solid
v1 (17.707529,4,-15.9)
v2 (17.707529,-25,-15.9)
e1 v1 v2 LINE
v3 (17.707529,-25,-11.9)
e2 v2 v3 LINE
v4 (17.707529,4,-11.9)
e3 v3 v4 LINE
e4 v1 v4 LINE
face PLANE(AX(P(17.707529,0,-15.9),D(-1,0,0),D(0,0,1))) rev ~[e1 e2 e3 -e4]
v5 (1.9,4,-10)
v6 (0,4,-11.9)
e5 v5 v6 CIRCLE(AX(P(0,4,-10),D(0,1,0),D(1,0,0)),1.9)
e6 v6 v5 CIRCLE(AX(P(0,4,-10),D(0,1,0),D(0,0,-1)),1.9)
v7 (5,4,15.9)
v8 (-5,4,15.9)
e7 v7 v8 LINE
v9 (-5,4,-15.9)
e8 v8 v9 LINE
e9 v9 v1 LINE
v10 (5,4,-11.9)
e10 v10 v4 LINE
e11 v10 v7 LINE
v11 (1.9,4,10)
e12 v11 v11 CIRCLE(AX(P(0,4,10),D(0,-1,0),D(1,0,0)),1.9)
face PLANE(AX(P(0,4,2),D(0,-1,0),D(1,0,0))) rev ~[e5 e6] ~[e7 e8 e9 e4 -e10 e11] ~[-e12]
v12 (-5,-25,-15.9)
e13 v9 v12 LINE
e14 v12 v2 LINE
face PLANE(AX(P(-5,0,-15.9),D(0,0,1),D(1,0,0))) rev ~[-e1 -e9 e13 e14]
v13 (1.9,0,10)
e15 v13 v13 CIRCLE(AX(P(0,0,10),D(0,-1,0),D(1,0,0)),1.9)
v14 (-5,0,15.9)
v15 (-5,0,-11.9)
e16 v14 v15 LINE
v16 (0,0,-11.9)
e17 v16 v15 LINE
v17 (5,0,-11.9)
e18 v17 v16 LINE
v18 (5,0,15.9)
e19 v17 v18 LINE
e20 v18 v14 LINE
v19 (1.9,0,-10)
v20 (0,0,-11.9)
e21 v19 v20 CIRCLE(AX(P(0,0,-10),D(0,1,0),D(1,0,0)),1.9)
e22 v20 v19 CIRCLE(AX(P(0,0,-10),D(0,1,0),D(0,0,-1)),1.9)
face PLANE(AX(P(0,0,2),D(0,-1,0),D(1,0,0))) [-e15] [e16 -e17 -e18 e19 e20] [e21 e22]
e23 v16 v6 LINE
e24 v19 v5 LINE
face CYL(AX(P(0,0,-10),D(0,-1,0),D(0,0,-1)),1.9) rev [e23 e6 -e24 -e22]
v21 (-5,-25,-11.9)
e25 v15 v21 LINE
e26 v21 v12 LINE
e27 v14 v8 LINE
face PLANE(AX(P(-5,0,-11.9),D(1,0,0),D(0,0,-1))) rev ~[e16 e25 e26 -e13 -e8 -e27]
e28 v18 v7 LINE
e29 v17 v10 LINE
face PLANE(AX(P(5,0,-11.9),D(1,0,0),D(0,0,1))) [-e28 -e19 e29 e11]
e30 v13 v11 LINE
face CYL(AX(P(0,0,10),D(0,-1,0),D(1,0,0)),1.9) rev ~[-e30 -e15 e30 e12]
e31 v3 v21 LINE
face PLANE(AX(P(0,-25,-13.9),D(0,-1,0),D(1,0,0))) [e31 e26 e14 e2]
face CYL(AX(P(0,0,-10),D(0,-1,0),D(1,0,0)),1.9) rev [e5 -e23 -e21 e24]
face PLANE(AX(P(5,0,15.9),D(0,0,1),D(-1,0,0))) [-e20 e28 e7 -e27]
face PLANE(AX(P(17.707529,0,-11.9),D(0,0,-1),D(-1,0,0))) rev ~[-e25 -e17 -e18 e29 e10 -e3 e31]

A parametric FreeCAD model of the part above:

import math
import FreeCAD as App
import Part
import Sketcher

V = App.Vector
Q = App.Units.Quantity


def add_polygon(sketch, points):
    """Adds a closed chain of lines whose ends are joined by coincident constraints."""
    first, n = sketch.GeometryCount, len(points)
    for a, b in zip(points, points[1:] + points[:1]):
        sketch.addGeometry(Part.LineSegment(App.Vector(*a, 0), App.Vector(*b, 0)), False)
    for i in range(n):
        sketch.addConstraint(Sketcher.Constraint("Coincident", first + i, 2, first + (i + 1) % n, 1))

doc = App.newDocument("Part")
body = doc.addObject("PartDesign::Body", "Body")

sketch1 = body.newObject("Sketcher::SketchObject", "Sketch")
sketch1.AttachmentSupport = (doc.getObject("XZ_Plane"), [""])
sketch1.MapMode = "FlatFace"
add_polygon(sketch1, [(-5, 15.9), (-5, -15.9), (17.7, -15.9), (17.7, -11.9), (5, -11.9), (5, 15.9)])
sketch1.addGeometry(Part.ArcOfCircle(Part.Circle(V(0, -10, 0), V(0, 0, 1), 1.9), math.radians(-90), math.radians(0)), False)
sketch1.addGeometry(Part.ArcOfCircle(Part.Circle(V(0, -10, 0), V(0, 0, 1), 1.9), math.radians(0), math.radians(270)), False)
sketch1.addGeometry(Part.Circle(V(0, 10, 0), V(0, 0, 1), 1.9), False)
sketch1.addConstraint([
    Sketcher.Constraint("Tangent", 6, 1, 7, 2),
    Sketcher.Constraint("Coincident", 7, 1, 6, 2),
    Sketcher.Constraint("Vertical", 0),
    Sketcher.Constraint("Horizontal", 1),
    Sketcher.Constraint("Vertical", 2),
    Sketcher.Constraint("Horizontal", 3),
    Sketcher.Constraint("Vertical", 4),
    Sketcher.Constraint("Horizontal", 5),
    Sketcher.Constraint("Equal", 7, 8),
    Sketcher.Constraint("Symmetric", 6, 3, 8, 3, -1, 1),
    Sketcher.Constraint("Symmetric", 0, 2, 4, 2, -1, 1),
    Sketcher.Constraint("PointOnObject", 6, 3, -2),
    Sketcher.Constraint("PointOnObject", 6, 1, -2),
    Sketcher.Constraint("Horizontal", 3, 2, 6, 1),
    Sketcher.Constraint("Horizontal", 6, 3, 7, 1),
    Sketcher.Constraint("Diameter", 8, Q("3.8 mm")),
    Sketcher.Constraint("DistanceX", 5, 2, 5, 1, Q("10 mm")),
    Sketcher.Constraint("DistanceY", 2, 1, 2, 2, Q("4 mm")),
    Sketcher.Constraint("DistanceY", 0, 2, 0, 1, Q("31.8 mm")),
    Sketcher.Constraint("DistanceX", 1, 1, 1, 2, Q("22.707529 mm")),
])
pad1 = body.newObject("PartDesign::Pad", "Pad")
pad1.Profile = sketch1
pad1.Length = 4
pad1.Reversed = True

sketch2 = body.newObject("Sketcher::SketchObject", "Sketch001")
sketch2.AttachmentSupport = (doc.getObject("XZ_Plane"), [""])
sketch2.MapMode = "FlatFace"
add_polygon(sketch2, [(-5, -11.9), (-5, -15.9), (17.7, -15.9), (17.7, -11.9)])
sketch2.addConstraint([
    Sketcher.Constraint("Vertical", 0),
    Sketcher.Constraint("Horizontal", 1),
    Sketcher.Constraint("Vertical", 2),
    Sketcher.Constraint("Horizontal", 3),
    Sketcher.Constraint("DistanceY", 0, 2, 0, 1, Q("4 mm")),
    Sketcher.Constraint("DistanceX", 0, 2, -1, 1, Q("5 mm")),
    Sketcher.Constraint("DistanceY", 0, 2, -1, 1, Q("15.9 mm")),
    Sketcher.Constraint("DistanceX", 1, 1, 1, 2, Q("22.707529 mm")),
])
pad2 = body.newObject("PartDesign::Pad", "Pad001")
pad2.Profile = sketch2
pad2.Length = 25

doc.recompute()
